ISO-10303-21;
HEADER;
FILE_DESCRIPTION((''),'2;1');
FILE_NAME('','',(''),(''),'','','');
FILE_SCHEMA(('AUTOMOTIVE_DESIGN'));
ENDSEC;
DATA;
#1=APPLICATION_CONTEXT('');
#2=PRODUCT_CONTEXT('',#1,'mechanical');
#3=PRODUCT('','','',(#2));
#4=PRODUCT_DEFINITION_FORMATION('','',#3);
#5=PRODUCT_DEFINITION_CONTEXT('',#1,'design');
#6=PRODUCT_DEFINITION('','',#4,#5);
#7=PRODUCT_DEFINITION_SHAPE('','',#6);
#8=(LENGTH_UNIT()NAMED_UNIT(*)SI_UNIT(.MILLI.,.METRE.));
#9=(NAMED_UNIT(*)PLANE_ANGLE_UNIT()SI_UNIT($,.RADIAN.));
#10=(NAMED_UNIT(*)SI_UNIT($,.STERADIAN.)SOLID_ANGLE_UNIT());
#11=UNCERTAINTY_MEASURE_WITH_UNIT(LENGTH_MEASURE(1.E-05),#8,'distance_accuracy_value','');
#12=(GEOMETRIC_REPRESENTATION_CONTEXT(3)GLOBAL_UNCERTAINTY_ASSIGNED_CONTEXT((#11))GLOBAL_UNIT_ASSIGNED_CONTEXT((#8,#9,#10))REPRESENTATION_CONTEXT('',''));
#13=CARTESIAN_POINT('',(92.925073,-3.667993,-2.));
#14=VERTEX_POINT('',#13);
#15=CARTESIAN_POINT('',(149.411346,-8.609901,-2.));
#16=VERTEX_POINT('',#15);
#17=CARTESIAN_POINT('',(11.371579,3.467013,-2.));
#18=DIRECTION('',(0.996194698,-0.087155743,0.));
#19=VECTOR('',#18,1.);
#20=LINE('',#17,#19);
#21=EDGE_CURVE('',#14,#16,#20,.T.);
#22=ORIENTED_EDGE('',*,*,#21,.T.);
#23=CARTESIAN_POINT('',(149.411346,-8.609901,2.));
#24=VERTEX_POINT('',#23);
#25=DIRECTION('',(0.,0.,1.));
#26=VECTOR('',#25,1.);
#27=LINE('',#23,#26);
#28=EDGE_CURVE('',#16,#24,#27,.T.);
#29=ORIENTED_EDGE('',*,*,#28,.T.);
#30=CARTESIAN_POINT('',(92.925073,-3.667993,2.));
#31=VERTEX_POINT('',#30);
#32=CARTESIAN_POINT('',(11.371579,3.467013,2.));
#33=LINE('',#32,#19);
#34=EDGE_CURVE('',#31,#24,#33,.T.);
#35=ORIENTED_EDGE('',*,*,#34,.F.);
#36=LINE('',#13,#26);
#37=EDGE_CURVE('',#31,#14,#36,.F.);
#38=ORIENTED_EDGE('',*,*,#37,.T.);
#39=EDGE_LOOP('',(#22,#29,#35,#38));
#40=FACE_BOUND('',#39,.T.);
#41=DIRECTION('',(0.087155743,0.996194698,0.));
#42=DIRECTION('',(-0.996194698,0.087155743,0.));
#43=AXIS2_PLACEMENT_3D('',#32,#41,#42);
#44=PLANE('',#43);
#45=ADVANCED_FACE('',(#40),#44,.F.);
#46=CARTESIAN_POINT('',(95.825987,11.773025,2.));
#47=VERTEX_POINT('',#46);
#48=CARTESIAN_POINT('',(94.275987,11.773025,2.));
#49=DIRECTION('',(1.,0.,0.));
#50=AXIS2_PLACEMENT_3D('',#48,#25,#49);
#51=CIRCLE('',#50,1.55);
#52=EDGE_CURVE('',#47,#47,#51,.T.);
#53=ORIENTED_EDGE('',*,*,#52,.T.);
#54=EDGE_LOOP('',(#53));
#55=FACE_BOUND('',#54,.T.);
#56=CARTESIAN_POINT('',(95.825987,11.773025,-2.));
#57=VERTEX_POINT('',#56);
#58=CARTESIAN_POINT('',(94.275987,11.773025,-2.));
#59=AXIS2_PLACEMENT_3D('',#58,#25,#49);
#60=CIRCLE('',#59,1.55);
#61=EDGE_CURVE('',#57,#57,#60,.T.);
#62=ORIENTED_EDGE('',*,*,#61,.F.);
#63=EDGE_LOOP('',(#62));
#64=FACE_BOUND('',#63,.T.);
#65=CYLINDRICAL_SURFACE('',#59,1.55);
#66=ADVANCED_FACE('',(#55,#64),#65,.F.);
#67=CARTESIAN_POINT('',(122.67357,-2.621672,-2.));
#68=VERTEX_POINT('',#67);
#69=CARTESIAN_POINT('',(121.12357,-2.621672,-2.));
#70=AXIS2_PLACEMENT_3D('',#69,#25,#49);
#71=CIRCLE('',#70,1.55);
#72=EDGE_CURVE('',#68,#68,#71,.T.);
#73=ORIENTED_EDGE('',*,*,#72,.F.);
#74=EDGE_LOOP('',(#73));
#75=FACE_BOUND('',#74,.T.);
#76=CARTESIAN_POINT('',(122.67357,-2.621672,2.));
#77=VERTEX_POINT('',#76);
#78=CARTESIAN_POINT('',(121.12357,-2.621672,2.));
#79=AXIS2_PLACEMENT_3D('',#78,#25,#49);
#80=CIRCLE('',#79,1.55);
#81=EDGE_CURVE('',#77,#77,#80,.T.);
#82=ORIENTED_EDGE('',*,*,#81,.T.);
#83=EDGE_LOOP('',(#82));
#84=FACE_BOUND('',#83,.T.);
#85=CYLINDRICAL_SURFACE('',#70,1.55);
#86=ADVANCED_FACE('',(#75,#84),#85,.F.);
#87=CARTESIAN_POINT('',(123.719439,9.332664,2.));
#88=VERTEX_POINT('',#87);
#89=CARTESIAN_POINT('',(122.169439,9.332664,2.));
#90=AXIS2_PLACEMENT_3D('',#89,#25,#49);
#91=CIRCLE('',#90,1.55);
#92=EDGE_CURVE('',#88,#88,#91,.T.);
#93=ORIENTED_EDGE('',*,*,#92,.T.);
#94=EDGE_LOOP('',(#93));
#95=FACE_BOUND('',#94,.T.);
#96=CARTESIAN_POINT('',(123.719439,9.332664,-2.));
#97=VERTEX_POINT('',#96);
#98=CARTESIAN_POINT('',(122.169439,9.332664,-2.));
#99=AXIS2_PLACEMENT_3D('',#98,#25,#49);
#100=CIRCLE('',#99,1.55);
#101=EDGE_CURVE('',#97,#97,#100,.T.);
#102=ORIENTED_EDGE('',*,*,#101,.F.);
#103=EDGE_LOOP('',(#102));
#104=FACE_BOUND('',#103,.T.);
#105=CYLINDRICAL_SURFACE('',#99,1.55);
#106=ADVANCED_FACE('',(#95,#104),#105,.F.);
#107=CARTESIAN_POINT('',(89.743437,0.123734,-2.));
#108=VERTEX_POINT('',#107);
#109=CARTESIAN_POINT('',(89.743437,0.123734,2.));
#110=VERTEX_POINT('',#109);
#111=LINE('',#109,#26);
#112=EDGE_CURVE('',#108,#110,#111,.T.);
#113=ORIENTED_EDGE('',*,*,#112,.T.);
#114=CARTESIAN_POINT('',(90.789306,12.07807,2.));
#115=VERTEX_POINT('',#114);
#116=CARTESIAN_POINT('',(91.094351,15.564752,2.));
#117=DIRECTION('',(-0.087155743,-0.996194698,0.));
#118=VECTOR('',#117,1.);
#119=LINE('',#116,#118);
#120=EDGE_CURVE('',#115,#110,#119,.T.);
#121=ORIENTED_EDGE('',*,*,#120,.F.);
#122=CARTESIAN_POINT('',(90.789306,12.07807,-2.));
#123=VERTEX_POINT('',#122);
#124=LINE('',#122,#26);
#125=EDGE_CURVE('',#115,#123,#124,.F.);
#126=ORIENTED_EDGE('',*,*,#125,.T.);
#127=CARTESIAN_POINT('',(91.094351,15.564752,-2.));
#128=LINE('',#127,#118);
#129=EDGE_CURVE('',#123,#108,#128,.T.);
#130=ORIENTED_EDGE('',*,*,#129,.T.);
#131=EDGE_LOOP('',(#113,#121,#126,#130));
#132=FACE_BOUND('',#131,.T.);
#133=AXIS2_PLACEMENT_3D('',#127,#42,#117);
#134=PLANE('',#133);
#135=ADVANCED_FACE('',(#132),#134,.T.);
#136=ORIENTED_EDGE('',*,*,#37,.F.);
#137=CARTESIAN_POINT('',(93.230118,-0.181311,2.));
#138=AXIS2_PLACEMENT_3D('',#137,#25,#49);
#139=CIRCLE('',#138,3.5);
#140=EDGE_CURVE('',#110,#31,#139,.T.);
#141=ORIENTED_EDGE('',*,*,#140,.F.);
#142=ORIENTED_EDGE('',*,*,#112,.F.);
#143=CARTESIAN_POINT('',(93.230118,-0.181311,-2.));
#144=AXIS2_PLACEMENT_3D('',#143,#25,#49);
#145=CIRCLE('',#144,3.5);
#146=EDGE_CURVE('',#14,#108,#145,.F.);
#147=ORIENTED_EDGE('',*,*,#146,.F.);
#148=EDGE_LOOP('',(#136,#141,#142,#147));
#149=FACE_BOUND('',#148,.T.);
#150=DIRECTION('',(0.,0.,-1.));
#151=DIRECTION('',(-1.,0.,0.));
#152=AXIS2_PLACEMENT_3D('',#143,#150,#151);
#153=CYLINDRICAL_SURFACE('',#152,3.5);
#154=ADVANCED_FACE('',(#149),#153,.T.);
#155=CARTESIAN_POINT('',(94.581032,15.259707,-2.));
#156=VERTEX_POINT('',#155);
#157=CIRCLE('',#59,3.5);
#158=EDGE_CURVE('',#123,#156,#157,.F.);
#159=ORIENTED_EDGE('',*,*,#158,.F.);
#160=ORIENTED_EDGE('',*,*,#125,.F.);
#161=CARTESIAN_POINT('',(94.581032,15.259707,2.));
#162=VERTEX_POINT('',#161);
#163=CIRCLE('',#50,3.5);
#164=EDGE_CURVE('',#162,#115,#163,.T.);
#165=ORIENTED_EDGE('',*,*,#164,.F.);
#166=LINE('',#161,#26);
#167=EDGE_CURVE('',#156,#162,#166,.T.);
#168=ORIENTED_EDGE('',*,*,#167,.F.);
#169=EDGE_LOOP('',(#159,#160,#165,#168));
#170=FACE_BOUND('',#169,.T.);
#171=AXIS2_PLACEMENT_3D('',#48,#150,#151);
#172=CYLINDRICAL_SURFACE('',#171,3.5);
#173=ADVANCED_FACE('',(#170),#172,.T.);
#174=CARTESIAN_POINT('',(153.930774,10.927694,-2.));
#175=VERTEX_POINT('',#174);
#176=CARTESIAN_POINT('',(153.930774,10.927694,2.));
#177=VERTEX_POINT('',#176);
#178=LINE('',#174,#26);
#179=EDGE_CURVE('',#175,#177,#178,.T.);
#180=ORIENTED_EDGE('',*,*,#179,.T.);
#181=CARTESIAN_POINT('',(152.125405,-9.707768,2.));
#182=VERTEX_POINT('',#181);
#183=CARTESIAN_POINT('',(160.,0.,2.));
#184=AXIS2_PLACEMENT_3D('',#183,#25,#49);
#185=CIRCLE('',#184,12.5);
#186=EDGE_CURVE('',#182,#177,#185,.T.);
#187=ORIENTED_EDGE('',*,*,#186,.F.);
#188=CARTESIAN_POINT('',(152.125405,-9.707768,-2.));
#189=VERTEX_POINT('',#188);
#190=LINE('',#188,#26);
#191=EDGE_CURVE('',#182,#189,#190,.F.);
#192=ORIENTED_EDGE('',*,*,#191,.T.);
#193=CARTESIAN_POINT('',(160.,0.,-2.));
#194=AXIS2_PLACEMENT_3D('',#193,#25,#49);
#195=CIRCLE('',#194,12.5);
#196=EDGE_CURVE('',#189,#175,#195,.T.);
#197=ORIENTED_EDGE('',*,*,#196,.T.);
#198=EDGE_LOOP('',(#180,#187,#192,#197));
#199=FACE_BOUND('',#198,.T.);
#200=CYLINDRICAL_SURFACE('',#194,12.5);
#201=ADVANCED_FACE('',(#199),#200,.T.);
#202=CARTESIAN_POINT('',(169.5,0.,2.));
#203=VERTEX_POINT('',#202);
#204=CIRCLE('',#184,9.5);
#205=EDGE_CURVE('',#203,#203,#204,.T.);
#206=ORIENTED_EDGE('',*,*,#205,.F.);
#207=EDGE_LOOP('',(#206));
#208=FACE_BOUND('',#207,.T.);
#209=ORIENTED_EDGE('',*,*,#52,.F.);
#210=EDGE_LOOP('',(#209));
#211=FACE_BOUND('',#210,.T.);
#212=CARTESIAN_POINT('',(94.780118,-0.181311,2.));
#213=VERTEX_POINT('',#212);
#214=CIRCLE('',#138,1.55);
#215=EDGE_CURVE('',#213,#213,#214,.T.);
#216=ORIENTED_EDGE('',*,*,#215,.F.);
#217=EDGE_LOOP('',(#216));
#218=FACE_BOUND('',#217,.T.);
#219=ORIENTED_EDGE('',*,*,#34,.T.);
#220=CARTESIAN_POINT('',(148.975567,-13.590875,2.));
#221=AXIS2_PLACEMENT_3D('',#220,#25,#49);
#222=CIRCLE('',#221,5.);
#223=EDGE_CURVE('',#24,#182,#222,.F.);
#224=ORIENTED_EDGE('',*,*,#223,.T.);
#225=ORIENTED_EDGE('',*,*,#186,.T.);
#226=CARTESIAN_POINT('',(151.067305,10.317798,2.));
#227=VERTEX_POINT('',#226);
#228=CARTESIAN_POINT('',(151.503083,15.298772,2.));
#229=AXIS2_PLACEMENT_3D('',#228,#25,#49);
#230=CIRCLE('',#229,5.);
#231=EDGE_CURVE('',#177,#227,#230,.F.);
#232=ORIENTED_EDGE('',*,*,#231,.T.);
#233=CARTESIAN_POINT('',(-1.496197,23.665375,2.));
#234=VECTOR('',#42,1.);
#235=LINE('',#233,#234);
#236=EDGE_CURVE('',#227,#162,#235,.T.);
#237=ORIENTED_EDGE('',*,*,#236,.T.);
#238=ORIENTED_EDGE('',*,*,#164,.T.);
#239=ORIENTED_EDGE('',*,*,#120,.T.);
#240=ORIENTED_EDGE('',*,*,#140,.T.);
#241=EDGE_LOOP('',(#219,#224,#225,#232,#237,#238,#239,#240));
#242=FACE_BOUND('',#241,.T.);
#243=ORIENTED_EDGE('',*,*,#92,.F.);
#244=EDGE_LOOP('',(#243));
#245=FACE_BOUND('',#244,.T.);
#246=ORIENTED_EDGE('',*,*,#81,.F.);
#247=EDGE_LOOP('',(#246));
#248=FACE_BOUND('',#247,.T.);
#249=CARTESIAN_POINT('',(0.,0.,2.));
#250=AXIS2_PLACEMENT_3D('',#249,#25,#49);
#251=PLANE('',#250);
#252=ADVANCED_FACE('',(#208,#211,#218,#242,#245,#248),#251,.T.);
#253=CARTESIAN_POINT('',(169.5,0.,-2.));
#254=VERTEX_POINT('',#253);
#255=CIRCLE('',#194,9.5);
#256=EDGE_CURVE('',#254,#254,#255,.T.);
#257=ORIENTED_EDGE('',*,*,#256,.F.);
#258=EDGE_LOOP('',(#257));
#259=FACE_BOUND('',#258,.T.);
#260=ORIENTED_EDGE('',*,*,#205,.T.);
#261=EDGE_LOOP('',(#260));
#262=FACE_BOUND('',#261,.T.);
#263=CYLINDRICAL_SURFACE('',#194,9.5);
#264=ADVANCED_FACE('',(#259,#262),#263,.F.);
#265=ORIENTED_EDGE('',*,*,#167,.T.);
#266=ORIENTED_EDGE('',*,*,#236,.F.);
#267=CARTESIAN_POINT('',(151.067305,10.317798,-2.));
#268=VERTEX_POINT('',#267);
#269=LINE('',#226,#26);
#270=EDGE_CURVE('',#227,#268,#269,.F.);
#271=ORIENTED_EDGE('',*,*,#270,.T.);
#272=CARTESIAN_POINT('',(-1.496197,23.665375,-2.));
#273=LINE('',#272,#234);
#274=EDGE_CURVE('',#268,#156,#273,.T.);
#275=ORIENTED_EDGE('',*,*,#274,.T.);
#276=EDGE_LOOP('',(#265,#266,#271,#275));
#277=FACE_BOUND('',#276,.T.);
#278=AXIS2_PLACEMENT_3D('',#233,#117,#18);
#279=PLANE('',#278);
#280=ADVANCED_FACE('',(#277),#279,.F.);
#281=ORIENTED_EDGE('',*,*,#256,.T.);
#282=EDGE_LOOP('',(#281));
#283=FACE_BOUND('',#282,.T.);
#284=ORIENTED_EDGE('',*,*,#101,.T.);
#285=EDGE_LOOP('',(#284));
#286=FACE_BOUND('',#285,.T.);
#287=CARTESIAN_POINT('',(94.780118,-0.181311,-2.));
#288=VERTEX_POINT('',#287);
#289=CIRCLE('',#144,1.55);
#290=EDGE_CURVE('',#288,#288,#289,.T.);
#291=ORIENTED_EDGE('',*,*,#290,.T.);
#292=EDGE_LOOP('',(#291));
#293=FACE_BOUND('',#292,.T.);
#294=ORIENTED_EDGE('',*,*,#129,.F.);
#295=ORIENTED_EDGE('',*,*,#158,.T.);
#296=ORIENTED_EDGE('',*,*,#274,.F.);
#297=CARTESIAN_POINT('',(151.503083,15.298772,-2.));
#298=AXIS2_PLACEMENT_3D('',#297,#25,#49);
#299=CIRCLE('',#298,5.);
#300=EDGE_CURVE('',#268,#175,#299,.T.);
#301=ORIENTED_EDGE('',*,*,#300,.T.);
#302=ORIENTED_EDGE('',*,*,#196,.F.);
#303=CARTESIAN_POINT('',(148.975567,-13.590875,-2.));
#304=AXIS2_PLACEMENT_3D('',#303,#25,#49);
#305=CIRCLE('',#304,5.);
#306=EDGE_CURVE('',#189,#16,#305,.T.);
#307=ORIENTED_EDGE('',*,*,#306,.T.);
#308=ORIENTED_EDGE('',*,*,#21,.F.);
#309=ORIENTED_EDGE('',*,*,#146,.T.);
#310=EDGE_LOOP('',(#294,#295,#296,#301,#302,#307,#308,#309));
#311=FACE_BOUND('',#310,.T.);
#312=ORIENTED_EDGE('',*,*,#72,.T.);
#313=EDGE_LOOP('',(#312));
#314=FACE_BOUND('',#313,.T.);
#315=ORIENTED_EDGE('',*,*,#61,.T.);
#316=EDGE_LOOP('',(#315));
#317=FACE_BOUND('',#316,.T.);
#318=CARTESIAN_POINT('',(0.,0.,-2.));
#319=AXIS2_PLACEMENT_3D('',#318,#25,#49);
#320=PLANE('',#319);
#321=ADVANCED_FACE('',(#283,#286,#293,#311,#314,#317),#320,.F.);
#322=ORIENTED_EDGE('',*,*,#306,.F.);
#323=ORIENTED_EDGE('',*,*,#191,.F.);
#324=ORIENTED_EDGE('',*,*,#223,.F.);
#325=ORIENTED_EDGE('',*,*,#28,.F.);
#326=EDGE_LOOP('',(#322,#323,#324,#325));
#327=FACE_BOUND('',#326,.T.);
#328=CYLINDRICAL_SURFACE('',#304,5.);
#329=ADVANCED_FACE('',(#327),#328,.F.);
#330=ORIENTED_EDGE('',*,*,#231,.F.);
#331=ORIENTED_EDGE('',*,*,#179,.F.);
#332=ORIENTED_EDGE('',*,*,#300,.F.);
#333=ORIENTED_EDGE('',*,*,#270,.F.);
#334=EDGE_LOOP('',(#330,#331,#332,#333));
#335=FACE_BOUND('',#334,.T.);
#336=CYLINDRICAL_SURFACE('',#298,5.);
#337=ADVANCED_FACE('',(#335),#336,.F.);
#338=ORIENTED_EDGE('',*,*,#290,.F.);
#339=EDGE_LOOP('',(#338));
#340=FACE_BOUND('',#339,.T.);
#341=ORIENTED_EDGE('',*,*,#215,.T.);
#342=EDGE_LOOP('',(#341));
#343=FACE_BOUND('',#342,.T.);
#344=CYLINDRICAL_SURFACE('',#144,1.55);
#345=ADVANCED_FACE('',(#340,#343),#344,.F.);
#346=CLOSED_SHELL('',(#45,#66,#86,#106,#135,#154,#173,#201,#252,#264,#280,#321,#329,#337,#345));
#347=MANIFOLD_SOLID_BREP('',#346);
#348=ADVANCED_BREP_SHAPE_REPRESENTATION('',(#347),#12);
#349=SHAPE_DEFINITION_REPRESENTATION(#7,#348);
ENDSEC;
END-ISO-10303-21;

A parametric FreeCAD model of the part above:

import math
import FreeCAD as App
import Part
import Sketcher
Q = App.Units.Quantity


def edges_at(feature, points):
    """Names of the edges that pass closest to the given points."""
    edges = feature.Shape.Edges
    near = lambda p: min(range(len(edges)), key=lambda i: edges[i].distToShape(Part.Vertex(*p))[0])
    return sorted({f"Edge{near(p) + 1}" for p in points})

doc = App.newDocument("Part")
body = doc.addObject("PartDesign::Body", "Body")

sketch1 = body.newObject("Sketcher::SketchObject", "Sketch")
sketch1.AttachmentSupport = (doc.getObject("XY_Plane"), [""])
sketch1.MapMode = "FlatFace"
sketch1.addGeometry([
    Part.LineSegment(App.Vector(-1, 24, 0), App.Vector(-9, 3, 0)),
    Part.ArcOfCircle(Part.Circle(App.Vector(0, 0, 0), App.Vector(0, 0, 1), 10), math.radians(160), math.radians(340)),
    Part.LineSegment(App.Vector(9, -3, 0), App.Vector(11, 3, 0)),
    Part.LineSegment(App.Vector(11, 3, 0), App.Vector(159, -9, 0)),
    Part.ArcOfCircle(Part.Circle(App.Vector(160, 0, 0), App.Vector(0, 0, 1), 10), math.radians(-95), math.radians(85)),
    Part.LineSegment(App.Vector(161, 9, 0), App.Vector(-1, 24, 0)),
    Part.Circle(App.Vector(160, 0, 0), App.Vector(0, 0, 1), 6),
    Part.Circle(App.Vector(0, 0, 0), App.Vector(0, 0, 1), 6),
], False)
sketch1.addConstraint([
    Sketcher.Constraint("Tangent", 0, 2, 1, 1),
    Sketcher.Constraint("Tangent", 1, 2, 2, 1),
    Sketcher.Constraint("Coincident", 2, 2, 3, 1),
    Sketcher.Constraint("Tangent", 3, 2, 4, 1),
    Sketcher.Constraint("Tangent", 4, 2, 5, 1),
    Sketcher.Constraint("Coincident", 5, 2, 0, 1),
    Sketcher.Constraint("Coincident", 1, 3, -1, 1),
    Sketcher.Constraint("Coincident", 7, 3, -1, 1),
    Sketcher.Constraint("Coincident", 6, 3, 4, 3),
    Sketcher.Constraint("Equal", 1, 4),
    Sketcher.Constraint("Equal", 6, 7),
    Sketcher.Constraint("PointOnObject", 4, 3, -1),
    Sketcher.Constraint("Parallel", 0, 2),
    Sketcher.Constraint("Parallel", 3, 5),
    Sketcher.Constraint("Diameter", 6, 12.0),
    Sketcher.Constraint("Radius", 1, 9.5),
    Sketcher.Constraint("Angle", 0, Q("-110 deg")),
    Sketcher.Constraint("Angle", 3, Q("-5 deg")),
    Sketcher.Constraint("DistanceX", -1, 1, 4, 3, 160.0),
])
pad1 = body.newObject("PartDesign::Pad", "Pad")
pad1.Profile = sketch1
pad1.Length = 4
pad1.Midplane = True

sketch2 = body.newObject("Sketcher::SketchObject", "Sketch001")
sketch2.AttachmentSupport = (doc.getObject("XY_Plane"), [""])
sketch2.MapMode = "FlatFace"
sketch2.AttachmentOffset = App.Placement(App.Vector(0, 0, 2), App.Rotation())
sketch2.addGeometry([
    Part.Circle(App.Vector(0.9, 19.9, 0), App.Vector(0, 0, 1), 1.6),
    Part.Circle(App.Vector(16.2, 6.6, 0), App.Vector(0, 0, 1), 1.6),
    Part.Circle(App.Vector(11.9, 3.3, 0), App.Vector(0, 0, 1), 0.6),
], False)
sketch2.addConstraint([
    Sketcher.Constraint("Equal", 0, 1),
    Sketcher.Constraint("Diameter", 0, 3.1),
    Sketcher.Constraint("Diameter", 2, 1.2),
    Sketcher.Constraint("DistanceY", -1, 1, 2, 3, 3.261801),
    Sketcher.Constraint("DistanceY", 1, 3, 0, 3, 13.388472),
    Sketcher.Constraint("DistanceX", 2, 3, 1, 3, 4.285161),
    Sketcher.Constraint("DistanceY", 2, 3, 1, 3, 3.294351),
    Sketcher.Constraint("DistanceX", 0, 3, 2, 3, 11.061211),
    Sketcher.Constraint("DistanceX", -1, 1, 0, 3, 0.874183),
])
pocket1 = body.newObject("PartDesign::Pocket", "Pocket")
pocket1.Profile = sketch2
pocket1.Type = "ThroughAll"
doc.recompute()

fillet = body.newObject("PartDesign::Fillet", "Fillet")
fillet.Base = (pocket1, edges_at(pocket1, [(-1.496, 23.665, 0)]))
fillet.Radius = 3.5

sketch3 = body.newObject("Sketcher::SketchObject", "Sketch002")
sketch3.AttachmentSupport = (doc.getObject("XY_Plane"), [""])
sketch3.MapMode = "FlatFace"
sketch3.AttachmentOffset = App.Placement(App.Vector(0, 0, 2), App.Rotation())
sketch3.addGeometry([
    Part.LineSegment(App.Vector(-29, 43, 0), App.Vector(-29, -29, 0)),
    Part.LineSegment(App.Vector(-29, -29, 0), App.Vector(189, -29, 0)),
    Part.LineSegment(App.Vector(189, -29, 0), App.Vector(189, 43, 0)),
    Part.LineSegment(App.Vector(189, 43, 0), App.Vector(-29, 43, 0)),
    Part.LineSegment(App.Vector(89, -3, 0), App.Vector(91, 16, 0)),
    Part.LineSegment(App.Vector(91, 16, 0), App.Vector(161, 9, 0)),
    Part.ArcOfCircle(Part.Circle(App.Vector(160, 0, 0), App.Vector(0, 0, 1), 10), math.radians(-95), math.radians(85)),
    Part.LineSegment(App.Vector(159, -9, 0), App.Vector(89, -3, 0)),
], False)
sketch3.addConstraint([
    Sketcher.Constraint("Coincident", 0, 2, 1, 1),
    Sketcher.Constraint("Coincident", 1, 2, 2, 1),
    Sketcher.Constraint("Coincident", 2, 2, 3, 1),
    Sketcher.Constraint("Coincident", 3, 2, 0, 1),
    Sketcher.Constraint("Coincident", 4, 2, 5, 1),
    Sketcher.Constraint("Tangent", 5, 2, 6, 2),
    Sketcher.Constraint("Tangent", 6, 1, 7, 1),
    Sketcher.Constraint("Coincident", 7, 2, 4, 1),
    Sketcher.Constraint("Vertical", 0),
    Sketcher.Constraint("Horizontal", 1),
    Sketcher.Constraint("Vertical", 2),
    Sketcher.Constraint("Horizontal", 3),
    Sketcher.Constraint("PointOnObject", 6, 3, -1),
    Sketcher.Constraint("Perpendicular", 4, 5),
    Sketcher.Constraint("Parallel", 5, 7),
    Sketcher.Constraint("Radius", 6, 9.5),
    Sketcher.Constraint("Angle", 4, Q("85 deg")),
    Sketcher.Constraint("Distance", 5, 70.0),
    Sketcher.Constraint("DistanceX", -1, 1, 6, 3, 160.0),
    Sketcher.Constraint("DistanceX", 1, 1, 1, 2, 217.41),
    Sketcher.Constraint("DistanceY", 0, 2, 0, 1, 71.355),
    Sketcher.Constraint("DistanceY", -1, 1, 2, 2, 42.65),
    Sketcher.Constraint("DistanceX", 0, 2, -1, 1, 28.705),
])
pocket2 = body.newObject("PartDesign::Pocket", "Pocket001")
pocket2.Profile = sketch3
pocket2.Type = "ThroughAll"

sketch4 = body.newObject("Sketcher::SketchObject", "Sketch003")
sketch4.AttachmentSupport = (doc.getObject("XY_Plane"), [""])
sketch4.MapMode = "FlatFace"
sketch4.AttachmentOffset = App.Placement(App.Vector(0, 0, 2), App.Rotation())
sketch4.addGeometry([
    Part.Circle(App.Vector(94.3, 11.8, 0), App.Vector(0, 0, 1), 1.6),
    Part.Circle(App.Vector(93.2, -0.2, 0), App.Vector(0, 0, 1), 1.6),
    Part.Circle(App.Vector(122.2, 9.3, 0), App.Vector(0, 0, 1), 1.6),
    Part.Circle(App.Vector(121.1, -2.6, 0), App.Vector(0, 0, 1), 1.6),
], False)
sketch4.addConstraint([
    Sketcher.Constraint("Equal", 0, 1),
    Sketcher.Constraint("Equal", 1, 2),
    Sketcher.Constraint("Equal", 2, 3),
    Sketcher.Constraint("Diameter", 0, 3.1),
    Sketcher.Constraint("DistanceX", -1, 1, 1, 3, 93.230118),
    Sketcher.Constraint("DistanceY", 1, 3, -1, 1, 0.181311),
    Sketcher.Constraint("DistanceX", -1, 1, 2, 3, 122.169439),
    Sketcher.Constraint("DistanceX", -1, 1, 3, 3, 121.12357),
    Sketcher.Constraint("DistanceX", 1, 3, 0, 3, 1.045869),
    Sketcher.Constraint("DistanceY", 2, 3, 0, 3, 2.440361),
    Sketcher.Constraint("DistanceY", 3, 3, 1, 3, 2.440361),
    Sketcher.Constraint("DistanceY", -1, 1, 0, 3, 11.773025),
])
pocket3 = body.newObject("PartDesign::Pocket", "Pocket002")
pocket3.Profile = sketch4
pocket3.Type = "ThroughAll"
doc.recompute()

fillet2 = body.newObject("PartDesign::Fillet", "Fillet001")
fillet2.Base = (pocket3, edges_at(pocket3, [(89.438, -3.363, 0), (91.094, 15.565, 0)]))
fillet2.Radius = 3.5

sketch5 = body.newObject("Sketcher::SketchObject", "Sketch004")
sketch5.AttachmentSupport = (doc.getObject("XY_Plane"), [""])
sketch5.MapMode = "FlatFace"
sketch5.AttachmentOffset = App.Placement(App.Vector(0, 0, 2), App.Rotation())
sketch5.addGeometry(Part.Circle(App.Vector(160, 0, 0), App.Vector(0, 0, 1), 12), False)
sketch5.addConstraint([
    Sketcher.Constraint("PointOnObject", 0, 3, -1),
    Sketcher.Constraint("Diameter", 0, 25.0),
    Sketcher.Constraint("DistanceX", -1, 1, 0, 3, 160.0),
])
pad2 = body.newObject("PartDesign::Pad", "Pad001")
pad2.Profile = sketch5
pad2.Length = 4
pad2.Reversed = True

sketch6 = body.newObject("Sketcher::SketchObject", "Sketch005")
sketch6.AttachmentSupport = (doc.getObject("XY_Plane"), [""])
sketch6.MapMode = "FlatFace"
sketch6.AttachmentOffset = App.Placement(App.Vector(0, 0, 2), App.Rotation())
sketch6.addGeometry(Part.Circle(App.Vector(160, 0, 0), App.Vector(0, 0, 1), 10), False)
sketch6.addConstraint([
    Sketcher.Constraint("PointOnObject", 0, 3, -1),
    Sketcher.Constraint("Diameter", 0, 19.0),
    Sketcher.Constraint("DistanceX", -1, 1, 0, 3, 160.0),
])
pocket4 = body.newObject("PartDesign::Pocket", "Pocket003")
pocket4.Profile = sketch6
pocket4.Type = "ThroughAll"
doc.recompute()

fillet3 = body.newObject("PartDesign::Fillet", "Fillet002")
fillet3.Base = (pocket4, edges_at(pocket4, [(152.735, 10.172, 0), (151.079, -8.756, 0)]))
fillet3.Radius = 5

doc.recompute()
